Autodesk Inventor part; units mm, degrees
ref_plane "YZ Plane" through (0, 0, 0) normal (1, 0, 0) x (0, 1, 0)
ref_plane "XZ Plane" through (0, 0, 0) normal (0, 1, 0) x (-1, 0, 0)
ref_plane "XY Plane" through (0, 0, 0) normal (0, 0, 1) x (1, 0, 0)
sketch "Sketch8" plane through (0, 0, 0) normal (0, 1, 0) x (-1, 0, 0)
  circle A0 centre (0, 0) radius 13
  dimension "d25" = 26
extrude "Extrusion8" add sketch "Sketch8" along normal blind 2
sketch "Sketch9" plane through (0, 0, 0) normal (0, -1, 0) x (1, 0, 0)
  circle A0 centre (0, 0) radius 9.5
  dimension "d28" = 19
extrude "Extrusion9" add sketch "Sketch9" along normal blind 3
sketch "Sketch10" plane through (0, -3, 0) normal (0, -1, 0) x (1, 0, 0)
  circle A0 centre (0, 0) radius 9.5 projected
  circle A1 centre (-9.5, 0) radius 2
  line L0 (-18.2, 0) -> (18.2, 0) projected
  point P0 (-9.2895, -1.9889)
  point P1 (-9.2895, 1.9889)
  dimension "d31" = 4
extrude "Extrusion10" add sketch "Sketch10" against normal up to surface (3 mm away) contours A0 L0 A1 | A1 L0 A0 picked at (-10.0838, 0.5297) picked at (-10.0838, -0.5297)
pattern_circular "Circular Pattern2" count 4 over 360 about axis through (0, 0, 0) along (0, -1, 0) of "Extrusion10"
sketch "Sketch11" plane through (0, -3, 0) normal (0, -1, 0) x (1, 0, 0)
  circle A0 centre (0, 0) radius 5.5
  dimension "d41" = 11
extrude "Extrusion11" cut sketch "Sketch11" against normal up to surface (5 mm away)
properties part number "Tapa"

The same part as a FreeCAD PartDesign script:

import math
import FreeCAD as App
import Part
import Sketcher

V = App.Vector

doc = App.newDocument("Part")
body = doc.addObject("PartDesign::Body", "Body")

# Sketch on XZ plane
sketch1 = doc.addObject("Sketcher::SketchObject", "Sketch")
body.addObject(sketch1)
sketch1.AttachmentSupport = (doc.XZ_Plane, [""])
sketch1.MapMode = "FlatFace"
sketch1.addGeometry(Part.Circle(V(0, 0, 0), V(0, 0, 1), 13), False)
sketch1.addConstraint(Sketcher.Constraint("Coincident", 0, 3, -1, 1))
sketch1.addConstraint(Sketcher.Constraint("Diameter", 0, 26.0))
pad1 = doc.addObject("PartDesign::Pad", "Pad")
body.addObject(pad1)
pad1.Profile = sketch1
pad1.Length = 2
pad1.Reversed = True

# Sketch on XZ plane
sketch2 = doc.addObject("Sketcher::SketchObject", "Sketch001")
body.addObject(sketch2)
sketch2.AttachmentSupport = (doc.XZ_Plane, [""])
sketch2.MapMode = "FlatFace"
sketch2.addGeometry(Part.Circle(V(0, 0, 0), V(0, 0, 1), 10), False)
sketch2.addConstraint(Sketcher.Constraint("Coincident", 0, 3, -1, 1))
sketch2.addConstraint(Sketcher.Constraint("Diameter", 0, 19.0))
pad2 = doc.addObject("PartDesign::Pad", "Pad001")
body.addObject(pad2)
pad2.Profile = sketch2
pad2.Length = 3

# Sketch on XZ plane
sketch3 = doc.addObject("Sketcher::SketchObject", "Sketch002")
body.addObject(sketch3)
sketch3.AttachmentSupport = (doc.XZ_Plane, [""])
sketch3.MapMode = "FlatFace"
sketch3.AttachmentOffset = App.Placement(V(0, 0, 3), App.Rotation())
sketch3.addGeometry(Part.ArcOfCircle(Part.Circle(V(-9.5, 0, 0), V(0, 0, 1), 2), math.radians(84), math.radians(276)), False)
sketch3.addGeometry(Part.ArcOfCircle(Part.Circle(V(0, 0, 0), V(0, 0, 1), 9.5), math.radians(168), math.radians(192)), False)
sketch3.addConstraint(Sketcher.Constraint("Coincident", 0, 1, 1, 1))
sketch3.addConstraint(Sketcher.Constraint("Coincident", 1, 2, 0, 2))
sketch3.addConstraint(Sketcher.Constraint("Coincident", 1, 3, -1, 1))
sketch3.addConstraint(Sketcher.Constraint("PointOnObject", 0, 3, -1))
sketch3.addConstraint(Sketcher.Constraint("Radius", 0, 2.0))
sketch3.addConstraint(Sketcher.Constraint("Radius", 1, 9.5))
sketch3.addConstraint(Sketcher.Constraint("DistanceX", 0, 3, -1, 1, 9.5))
pad3 = doc.addObject("PartDesign::Pad", "Pad002")
body.addObject(pad3)
pad3.Profile = sketch3
pad3.Length = 3
pad3.Reversed = True
doc.recompute()

polarpattern = doc.addObject("PartDesign::PolarPattern", "PolarPattern")
body.addObject(polarpattern)
polarpattern.Originals = [pad3]
polarpattern.Axis = (doc.Y_Axis, [""])
polarpattern.Angle = 360
polarpattern.Occurrences = 4
body.Tip = polarpattern

# Sketch on XZ plane
sketch4 = doc.addObject("Sketcher::SketchObject", "Sketch003")
body.addObject(sketch4)
sketch4.AttachmentSupport = (doc.XZ_Plane, [""])
sketch4.MapMode = "FlatFace"
sketch4.AttachmentOffset = App.Placement(V(0, 0, 3), App.Rotation())
sketch4.addGeometry(Part.Circle(V(0, 0, 0), V(0, 0, 1), 6), False)
sketch4.addConstraint(Sketcher.Constraint("Coincident", 0, 3, -1, 1))
sketch4.addConstraint(Sketcher.Constraint("Diameter", 0, 11.0))
pocket1 = doc.addObject("PartDesign::Pocket", "Pocket")
body.addObject(pocket1)
pocket1.Profile = sketch4
pocket1.Length = 5

doc.recompute()
